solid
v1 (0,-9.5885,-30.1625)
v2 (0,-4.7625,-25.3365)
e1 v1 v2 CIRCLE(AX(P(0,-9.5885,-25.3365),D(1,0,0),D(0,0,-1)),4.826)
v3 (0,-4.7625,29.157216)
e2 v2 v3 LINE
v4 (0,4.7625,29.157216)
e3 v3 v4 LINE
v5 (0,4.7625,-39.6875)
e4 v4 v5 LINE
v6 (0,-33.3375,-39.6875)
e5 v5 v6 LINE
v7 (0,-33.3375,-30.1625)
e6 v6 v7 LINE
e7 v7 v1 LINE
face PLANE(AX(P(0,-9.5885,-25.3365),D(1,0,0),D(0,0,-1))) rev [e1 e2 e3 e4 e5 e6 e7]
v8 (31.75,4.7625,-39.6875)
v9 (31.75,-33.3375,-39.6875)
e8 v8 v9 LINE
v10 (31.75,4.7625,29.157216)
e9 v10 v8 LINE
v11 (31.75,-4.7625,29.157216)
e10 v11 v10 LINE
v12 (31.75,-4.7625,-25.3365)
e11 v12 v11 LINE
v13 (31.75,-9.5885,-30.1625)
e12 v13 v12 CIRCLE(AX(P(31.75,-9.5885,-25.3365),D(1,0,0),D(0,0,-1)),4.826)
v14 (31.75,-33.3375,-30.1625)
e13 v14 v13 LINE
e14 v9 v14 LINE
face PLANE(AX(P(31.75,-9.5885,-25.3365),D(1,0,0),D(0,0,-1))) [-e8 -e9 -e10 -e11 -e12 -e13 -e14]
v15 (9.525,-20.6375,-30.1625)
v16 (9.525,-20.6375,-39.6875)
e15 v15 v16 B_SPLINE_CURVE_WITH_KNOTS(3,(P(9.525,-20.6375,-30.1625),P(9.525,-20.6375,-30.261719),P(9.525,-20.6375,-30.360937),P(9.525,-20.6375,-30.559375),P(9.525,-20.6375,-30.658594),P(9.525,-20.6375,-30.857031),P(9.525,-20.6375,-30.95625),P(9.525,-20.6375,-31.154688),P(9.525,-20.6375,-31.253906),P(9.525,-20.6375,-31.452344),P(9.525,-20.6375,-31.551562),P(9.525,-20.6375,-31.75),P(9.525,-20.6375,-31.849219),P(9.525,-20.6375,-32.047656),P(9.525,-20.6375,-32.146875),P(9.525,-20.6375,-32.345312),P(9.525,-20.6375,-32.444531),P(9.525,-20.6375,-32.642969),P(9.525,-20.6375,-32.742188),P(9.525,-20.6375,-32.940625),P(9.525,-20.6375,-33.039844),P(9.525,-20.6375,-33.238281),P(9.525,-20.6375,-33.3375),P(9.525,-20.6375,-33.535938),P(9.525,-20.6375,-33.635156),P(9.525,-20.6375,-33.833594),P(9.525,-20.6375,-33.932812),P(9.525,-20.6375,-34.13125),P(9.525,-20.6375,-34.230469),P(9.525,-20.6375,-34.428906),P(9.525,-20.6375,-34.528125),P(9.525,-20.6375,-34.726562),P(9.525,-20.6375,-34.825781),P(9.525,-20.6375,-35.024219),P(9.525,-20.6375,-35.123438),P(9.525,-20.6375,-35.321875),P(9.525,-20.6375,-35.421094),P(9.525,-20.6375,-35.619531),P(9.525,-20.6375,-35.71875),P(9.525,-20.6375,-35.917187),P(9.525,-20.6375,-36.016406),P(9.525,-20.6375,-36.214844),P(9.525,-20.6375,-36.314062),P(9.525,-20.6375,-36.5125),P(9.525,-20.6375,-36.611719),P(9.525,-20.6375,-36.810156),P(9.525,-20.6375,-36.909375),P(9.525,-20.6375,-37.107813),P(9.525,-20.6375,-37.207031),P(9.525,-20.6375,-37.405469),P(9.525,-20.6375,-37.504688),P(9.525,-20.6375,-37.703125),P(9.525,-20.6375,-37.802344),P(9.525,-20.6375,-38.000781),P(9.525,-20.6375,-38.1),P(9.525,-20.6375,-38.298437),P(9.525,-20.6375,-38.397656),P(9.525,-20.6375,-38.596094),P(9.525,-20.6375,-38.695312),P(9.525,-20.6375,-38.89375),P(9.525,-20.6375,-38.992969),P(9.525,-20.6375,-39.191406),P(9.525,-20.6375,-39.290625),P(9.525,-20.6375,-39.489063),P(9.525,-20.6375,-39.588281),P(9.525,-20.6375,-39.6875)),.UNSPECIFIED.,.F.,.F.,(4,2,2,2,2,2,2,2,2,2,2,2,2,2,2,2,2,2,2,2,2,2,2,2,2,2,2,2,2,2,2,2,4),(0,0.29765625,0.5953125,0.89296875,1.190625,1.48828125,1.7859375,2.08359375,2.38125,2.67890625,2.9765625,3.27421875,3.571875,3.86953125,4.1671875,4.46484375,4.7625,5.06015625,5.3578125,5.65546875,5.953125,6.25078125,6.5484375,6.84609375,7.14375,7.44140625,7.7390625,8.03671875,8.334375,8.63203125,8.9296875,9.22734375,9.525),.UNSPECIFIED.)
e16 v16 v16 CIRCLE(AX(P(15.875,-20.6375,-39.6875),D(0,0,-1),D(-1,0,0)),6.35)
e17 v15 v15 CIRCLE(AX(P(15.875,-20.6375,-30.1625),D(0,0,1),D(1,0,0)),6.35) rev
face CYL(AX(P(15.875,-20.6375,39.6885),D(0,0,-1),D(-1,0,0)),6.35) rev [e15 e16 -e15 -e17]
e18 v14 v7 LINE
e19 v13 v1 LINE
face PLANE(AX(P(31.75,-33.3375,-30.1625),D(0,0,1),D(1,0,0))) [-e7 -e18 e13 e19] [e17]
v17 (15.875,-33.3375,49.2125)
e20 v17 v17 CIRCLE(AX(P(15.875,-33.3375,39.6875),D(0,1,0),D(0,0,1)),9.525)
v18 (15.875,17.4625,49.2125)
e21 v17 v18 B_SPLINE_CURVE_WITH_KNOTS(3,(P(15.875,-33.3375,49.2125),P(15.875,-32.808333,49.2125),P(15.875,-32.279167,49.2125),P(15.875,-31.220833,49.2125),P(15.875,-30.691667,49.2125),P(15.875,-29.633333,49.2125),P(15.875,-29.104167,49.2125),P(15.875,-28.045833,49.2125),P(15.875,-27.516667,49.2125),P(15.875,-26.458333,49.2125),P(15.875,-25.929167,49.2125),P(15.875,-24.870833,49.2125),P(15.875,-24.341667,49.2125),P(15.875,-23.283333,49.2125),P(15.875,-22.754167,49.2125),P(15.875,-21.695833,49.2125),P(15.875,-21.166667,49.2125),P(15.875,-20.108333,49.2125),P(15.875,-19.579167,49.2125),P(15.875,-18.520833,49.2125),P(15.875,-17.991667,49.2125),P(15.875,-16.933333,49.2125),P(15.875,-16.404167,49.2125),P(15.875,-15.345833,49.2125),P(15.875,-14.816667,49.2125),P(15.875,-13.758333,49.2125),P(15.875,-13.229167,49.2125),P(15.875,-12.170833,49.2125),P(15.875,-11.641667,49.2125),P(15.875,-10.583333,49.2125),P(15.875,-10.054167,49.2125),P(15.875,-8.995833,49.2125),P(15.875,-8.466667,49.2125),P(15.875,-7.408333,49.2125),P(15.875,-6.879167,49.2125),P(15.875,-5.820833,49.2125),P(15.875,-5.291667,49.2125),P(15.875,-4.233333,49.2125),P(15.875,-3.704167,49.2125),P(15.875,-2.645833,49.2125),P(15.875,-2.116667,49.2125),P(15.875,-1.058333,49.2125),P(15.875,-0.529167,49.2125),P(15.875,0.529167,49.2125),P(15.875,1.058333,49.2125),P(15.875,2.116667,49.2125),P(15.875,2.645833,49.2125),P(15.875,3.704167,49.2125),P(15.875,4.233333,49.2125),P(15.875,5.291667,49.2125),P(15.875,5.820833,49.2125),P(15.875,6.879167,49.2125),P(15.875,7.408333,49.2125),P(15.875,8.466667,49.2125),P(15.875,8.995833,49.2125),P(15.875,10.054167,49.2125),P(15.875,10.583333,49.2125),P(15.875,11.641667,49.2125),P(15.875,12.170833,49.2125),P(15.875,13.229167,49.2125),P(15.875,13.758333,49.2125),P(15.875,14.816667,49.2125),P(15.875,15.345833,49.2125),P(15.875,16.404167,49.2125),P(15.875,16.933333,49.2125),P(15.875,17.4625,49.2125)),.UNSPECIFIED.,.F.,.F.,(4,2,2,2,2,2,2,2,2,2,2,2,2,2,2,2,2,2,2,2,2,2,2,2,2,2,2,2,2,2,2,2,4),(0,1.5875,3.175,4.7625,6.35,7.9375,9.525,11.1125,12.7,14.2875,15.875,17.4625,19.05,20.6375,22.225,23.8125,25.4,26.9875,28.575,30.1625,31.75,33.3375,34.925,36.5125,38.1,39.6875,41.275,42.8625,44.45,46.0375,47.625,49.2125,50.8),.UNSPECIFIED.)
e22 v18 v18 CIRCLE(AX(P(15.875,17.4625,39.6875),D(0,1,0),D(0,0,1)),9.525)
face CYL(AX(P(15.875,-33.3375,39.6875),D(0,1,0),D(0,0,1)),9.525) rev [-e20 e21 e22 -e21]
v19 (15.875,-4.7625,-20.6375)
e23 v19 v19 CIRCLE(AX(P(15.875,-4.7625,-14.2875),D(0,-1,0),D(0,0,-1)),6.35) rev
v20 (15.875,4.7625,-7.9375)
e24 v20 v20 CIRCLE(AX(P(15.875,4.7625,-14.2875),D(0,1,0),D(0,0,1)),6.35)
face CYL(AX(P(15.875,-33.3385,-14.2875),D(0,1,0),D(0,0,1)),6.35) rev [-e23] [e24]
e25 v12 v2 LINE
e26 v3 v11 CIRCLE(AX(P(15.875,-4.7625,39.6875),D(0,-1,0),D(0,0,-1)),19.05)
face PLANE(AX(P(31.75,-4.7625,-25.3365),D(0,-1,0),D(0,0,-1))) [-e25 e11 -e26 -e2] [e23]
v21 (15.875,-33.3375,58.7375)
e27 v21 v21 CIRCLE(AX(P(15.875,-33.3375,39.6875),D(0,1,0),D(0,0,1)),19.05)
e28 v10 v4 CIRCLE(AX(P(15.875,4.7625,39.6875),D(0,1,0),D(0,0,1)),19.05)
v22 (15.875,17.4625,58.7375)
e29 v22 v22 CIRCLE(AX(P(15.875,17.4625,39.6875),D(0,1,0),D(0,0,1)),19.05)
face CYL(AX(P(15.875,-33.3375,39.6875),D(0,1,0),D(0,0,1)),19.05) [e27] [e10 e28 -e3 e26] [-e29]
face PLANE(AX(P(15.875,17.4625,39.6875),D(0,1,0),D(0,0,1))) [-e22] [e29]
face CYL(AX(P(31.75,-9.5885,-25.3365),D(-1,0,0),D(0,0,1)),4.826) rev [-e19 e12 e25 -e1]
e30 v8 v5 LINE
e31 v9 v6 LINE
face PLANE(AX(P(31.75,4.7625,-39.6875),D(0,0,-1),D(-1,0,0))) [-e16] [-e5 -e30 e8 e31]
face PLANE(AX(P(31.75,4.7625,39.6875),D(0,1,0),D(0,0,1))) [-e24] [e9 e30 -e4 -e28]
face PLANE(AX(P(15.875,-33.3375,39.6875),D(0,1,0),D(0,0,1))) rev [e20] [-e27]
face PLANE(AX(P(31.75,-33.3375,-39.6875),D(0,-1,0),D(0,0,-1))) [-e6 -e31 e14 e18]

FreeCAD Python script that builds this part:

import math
import FreeCAD as App
import Part
import Sketcher
from FreeCAD import Vector
Q = App.Units.Quantity

doc = App.newDocument("Part")
body = doc.addObject("PartDesign::Body", "Body")

sketch1 = body.newObject("Sketcher::SketchObject", "Sketch")
sketch1.AttachmentSupport = (doc.getObject("YZ_Plane"), [""])
sketch1.MapMode = "FlatFace"
sketch1.addGeometry([
    Part.LineSegment(Vector(-33.3, -39.7, 0), Vector(4.8, -39.7, 0)),
    Part.LineSegment(Vector(4.8, -39.7, 0), Vector(4.8, 39.7, 0)),
    Part.LineSegment(Vector(4.8, 39.7, 0), Vector(-4.8, 39.7, 0)),
    Part.LineSegment(Vector(-4.8, 39.7, 0), Vector(-4.8, -25.3, 0)),
    Part.ArcOfCircle(Part.Circle(Vector(-9.6, -25.3, 0), Vector(0, 0, 1), 4.8), math.radians(-90), math.radians(0)),
    Part.LineSegment(Vector(-9.6, -30.2, 0), Vector(-33.3, -30.2, 0)),
    Part.LineSegment(Vector(-33.3, -30.2, 0), Vector(-33.3, -39.7, 0)),
], False)
sketch1.addConstraint([
    Sketcher.Constraint("Coincident", 0, 2, 1, 1),
    Sketcher.Constraint("Coincident", 1, 2, 2, 1),
    Sketcher.Constraint("Coincident", 2, 2, 3, 1),
    Sketcher.Constraint("Tangent", 3, 2, 4, 2),
    Sketcher.Constraint("Tangent", 4, 1, 5, 1),
    Sketcher.Constraint("Coincident", 5, 2, 6, 1),
    Sketcher.Constraint("Coincident", 6, 2, 0, 1),
    Sketcher.Constraint("Horizontal", 0),
    Sketcher.Constraint("Vertical", 1),
    Sketcher.Constraint("Horizontal", 2),
    Sketcher.Constraint("Vertical", 3),
    Sketcher.Constraint("Horizontal", 5),
    Sketcher.Constraint("Vertical", 6),
    Sketcher.Constraint("Symmetric", 0, 2, 2, 2, -1, 1),
    Sketcher.Constraint("Equal", 2, 6),
    Sketcher.Constraint("Radius", 4, Q("0.19 in")),
    Sketcher.Constraint("DistanceX", 0, 1, 0, 2, Q("1.5 in")),
    Sketcher.Constraint("DistanceY", 3, 2, 3, 1, Q("2.56 in")),
    Sketcher.Constraint("DistanceX", 2, 2, 2, 1, Q("0.375 in")),
])
pad1 = body.newObject("PartDesign::Pad", "Pad")
pad1.Profile = sketch1
pad1.Length = Q("1.25 in")

sketch2 = body.newObject("Sketcher::SketchObject", "Sketch001")
sketch2.AttachmentSupport = (doc.getObject("XY_Plane"), [""])
sketch2.MapMode = "FlatFace"
sketch2.AttachmentOffset = App.Placement(Vector(0, 0, -1.5625 * 25.4), App.Rotation())
sketch2.addGeometry(Part.Circle(Vector(16, -21, 0), Vector(0, 0, 1), 6), False)
sketch2.addConstraint([
    Sketcher.Constraint("Diameter", 0, Q("0.5 in")),
    Sketcher.Constraint("DistanceX", -1, 1, 0, 3, Q("0.625 in")),
    Sketcher.Constraint("DistanceY", 0, 3, -1, 1, Q("0.8125 in")),
])
pocket1 = body.newObject("PartDesign::Pocket", "Pocket")
pocket1.Profile = sketch2
pocket1.Type = "UpToFirst"
pocket1.Reversed = True

sketch3 = body.newObject("Sketcher::SketchObject", "Sketch002")
sketch3.AttachmentSupport = (doc.getObject("XZ_Plane"), [""])
sketch3.MapMode = "FlatFace"
sketch3.AttachmentOffset = App.Placement(Vector(0, 0, -0.1875 * 25.4), App.Rotation())
sketch3.addGeometry(Part.Circle(Vector(16, -14, 0), Vector(0, 0, 1), 6), False)
sketch3.addConstraint([
    Sketcher.Constraint("Diameter", 0, Q("0.5 in")),
    Sketcher.Constraint("DistanceX", -1, 1, 0, 3, Q("0.625 in")),
    Sketcher.Constraint("DistanceY", 0, 3, -1, 1, Q("0.5625 in")),
])
pocket2 = body.newObject("PartDesign::Pocket", "Pocket001")
pocket2.Profile = sketch3
pocket2.Type = "UpToFirst"
pocket2.Reversed = True

sketch4 = body.newObject("Sketcher::SketchObject", "Sketch003")
sketch4.AttachmentSupport = (doc.getObject("XZ_Plane"), [""])
sketch4.MapMode = "FlatFace"
sketch4.AttachmentOffset = App.Placement(Vector(0, 0, -0.1875 * 25.4), App.Rotation())
sketch4.addGeometry(Part.Circle(Vector(16, 40, 0), Vector(0, 0, 1), 19), False)
sketch4.addConstraint([
    Sketcher.Constraint("Diameter", 0, Q("1.5 in")),
    Sketcher.Constraint("DistanceX", -1, 1, 0, 3, Q("0.625 in")),
    Sketcher.Constraint("DistanceY", -1, 1, 0, 3, Q("1.5625 in")),
])
pad2 = body.newObject("PartDesign::Pad", "Pad001")
pad2.Profile = sketch4
pad2.Type = "TwoLengths"
pad2.Length = Q("0.5 in")
pad2.Length2 = Q("1.5 in")
pad2.Reversed = True

sketch5 = body.newObject("Sketcher::SketchObject", "Sketch004")
sketch5.AttachmentSupport = (doc.getObject("XZ_Plane"), [""])
sketch5.MapMode = "FlatFace"
sketch5.AttachmentOffset = App.Placement(Vector(0, 0, -0.6875 * 25.4), App.Rotation())
sketch5.addGeometry(Part.Circle(Vector(16, 40, 0), Vector(0, 0, 1), 10), False)
sketch5.addConstraint([
    Sketcher.Constraint("Diameter", 0, Q("0.75 in")),
    Sketcher.Constraint("DistanceX", -1, 1, 0, 3, Q("0.625 in")),
    Sketcher.Constraint("DistanceY", -1, 1, 0, 3, Q("1.5625 in")),
])
pocket3 = body.newObject("PartDesign::Pocket", "Pocket002")
pocket3.Profile = sketch5
pocket3.Type = "ThroughAll"
pocket3.Reversed = True

doc.recompute()
